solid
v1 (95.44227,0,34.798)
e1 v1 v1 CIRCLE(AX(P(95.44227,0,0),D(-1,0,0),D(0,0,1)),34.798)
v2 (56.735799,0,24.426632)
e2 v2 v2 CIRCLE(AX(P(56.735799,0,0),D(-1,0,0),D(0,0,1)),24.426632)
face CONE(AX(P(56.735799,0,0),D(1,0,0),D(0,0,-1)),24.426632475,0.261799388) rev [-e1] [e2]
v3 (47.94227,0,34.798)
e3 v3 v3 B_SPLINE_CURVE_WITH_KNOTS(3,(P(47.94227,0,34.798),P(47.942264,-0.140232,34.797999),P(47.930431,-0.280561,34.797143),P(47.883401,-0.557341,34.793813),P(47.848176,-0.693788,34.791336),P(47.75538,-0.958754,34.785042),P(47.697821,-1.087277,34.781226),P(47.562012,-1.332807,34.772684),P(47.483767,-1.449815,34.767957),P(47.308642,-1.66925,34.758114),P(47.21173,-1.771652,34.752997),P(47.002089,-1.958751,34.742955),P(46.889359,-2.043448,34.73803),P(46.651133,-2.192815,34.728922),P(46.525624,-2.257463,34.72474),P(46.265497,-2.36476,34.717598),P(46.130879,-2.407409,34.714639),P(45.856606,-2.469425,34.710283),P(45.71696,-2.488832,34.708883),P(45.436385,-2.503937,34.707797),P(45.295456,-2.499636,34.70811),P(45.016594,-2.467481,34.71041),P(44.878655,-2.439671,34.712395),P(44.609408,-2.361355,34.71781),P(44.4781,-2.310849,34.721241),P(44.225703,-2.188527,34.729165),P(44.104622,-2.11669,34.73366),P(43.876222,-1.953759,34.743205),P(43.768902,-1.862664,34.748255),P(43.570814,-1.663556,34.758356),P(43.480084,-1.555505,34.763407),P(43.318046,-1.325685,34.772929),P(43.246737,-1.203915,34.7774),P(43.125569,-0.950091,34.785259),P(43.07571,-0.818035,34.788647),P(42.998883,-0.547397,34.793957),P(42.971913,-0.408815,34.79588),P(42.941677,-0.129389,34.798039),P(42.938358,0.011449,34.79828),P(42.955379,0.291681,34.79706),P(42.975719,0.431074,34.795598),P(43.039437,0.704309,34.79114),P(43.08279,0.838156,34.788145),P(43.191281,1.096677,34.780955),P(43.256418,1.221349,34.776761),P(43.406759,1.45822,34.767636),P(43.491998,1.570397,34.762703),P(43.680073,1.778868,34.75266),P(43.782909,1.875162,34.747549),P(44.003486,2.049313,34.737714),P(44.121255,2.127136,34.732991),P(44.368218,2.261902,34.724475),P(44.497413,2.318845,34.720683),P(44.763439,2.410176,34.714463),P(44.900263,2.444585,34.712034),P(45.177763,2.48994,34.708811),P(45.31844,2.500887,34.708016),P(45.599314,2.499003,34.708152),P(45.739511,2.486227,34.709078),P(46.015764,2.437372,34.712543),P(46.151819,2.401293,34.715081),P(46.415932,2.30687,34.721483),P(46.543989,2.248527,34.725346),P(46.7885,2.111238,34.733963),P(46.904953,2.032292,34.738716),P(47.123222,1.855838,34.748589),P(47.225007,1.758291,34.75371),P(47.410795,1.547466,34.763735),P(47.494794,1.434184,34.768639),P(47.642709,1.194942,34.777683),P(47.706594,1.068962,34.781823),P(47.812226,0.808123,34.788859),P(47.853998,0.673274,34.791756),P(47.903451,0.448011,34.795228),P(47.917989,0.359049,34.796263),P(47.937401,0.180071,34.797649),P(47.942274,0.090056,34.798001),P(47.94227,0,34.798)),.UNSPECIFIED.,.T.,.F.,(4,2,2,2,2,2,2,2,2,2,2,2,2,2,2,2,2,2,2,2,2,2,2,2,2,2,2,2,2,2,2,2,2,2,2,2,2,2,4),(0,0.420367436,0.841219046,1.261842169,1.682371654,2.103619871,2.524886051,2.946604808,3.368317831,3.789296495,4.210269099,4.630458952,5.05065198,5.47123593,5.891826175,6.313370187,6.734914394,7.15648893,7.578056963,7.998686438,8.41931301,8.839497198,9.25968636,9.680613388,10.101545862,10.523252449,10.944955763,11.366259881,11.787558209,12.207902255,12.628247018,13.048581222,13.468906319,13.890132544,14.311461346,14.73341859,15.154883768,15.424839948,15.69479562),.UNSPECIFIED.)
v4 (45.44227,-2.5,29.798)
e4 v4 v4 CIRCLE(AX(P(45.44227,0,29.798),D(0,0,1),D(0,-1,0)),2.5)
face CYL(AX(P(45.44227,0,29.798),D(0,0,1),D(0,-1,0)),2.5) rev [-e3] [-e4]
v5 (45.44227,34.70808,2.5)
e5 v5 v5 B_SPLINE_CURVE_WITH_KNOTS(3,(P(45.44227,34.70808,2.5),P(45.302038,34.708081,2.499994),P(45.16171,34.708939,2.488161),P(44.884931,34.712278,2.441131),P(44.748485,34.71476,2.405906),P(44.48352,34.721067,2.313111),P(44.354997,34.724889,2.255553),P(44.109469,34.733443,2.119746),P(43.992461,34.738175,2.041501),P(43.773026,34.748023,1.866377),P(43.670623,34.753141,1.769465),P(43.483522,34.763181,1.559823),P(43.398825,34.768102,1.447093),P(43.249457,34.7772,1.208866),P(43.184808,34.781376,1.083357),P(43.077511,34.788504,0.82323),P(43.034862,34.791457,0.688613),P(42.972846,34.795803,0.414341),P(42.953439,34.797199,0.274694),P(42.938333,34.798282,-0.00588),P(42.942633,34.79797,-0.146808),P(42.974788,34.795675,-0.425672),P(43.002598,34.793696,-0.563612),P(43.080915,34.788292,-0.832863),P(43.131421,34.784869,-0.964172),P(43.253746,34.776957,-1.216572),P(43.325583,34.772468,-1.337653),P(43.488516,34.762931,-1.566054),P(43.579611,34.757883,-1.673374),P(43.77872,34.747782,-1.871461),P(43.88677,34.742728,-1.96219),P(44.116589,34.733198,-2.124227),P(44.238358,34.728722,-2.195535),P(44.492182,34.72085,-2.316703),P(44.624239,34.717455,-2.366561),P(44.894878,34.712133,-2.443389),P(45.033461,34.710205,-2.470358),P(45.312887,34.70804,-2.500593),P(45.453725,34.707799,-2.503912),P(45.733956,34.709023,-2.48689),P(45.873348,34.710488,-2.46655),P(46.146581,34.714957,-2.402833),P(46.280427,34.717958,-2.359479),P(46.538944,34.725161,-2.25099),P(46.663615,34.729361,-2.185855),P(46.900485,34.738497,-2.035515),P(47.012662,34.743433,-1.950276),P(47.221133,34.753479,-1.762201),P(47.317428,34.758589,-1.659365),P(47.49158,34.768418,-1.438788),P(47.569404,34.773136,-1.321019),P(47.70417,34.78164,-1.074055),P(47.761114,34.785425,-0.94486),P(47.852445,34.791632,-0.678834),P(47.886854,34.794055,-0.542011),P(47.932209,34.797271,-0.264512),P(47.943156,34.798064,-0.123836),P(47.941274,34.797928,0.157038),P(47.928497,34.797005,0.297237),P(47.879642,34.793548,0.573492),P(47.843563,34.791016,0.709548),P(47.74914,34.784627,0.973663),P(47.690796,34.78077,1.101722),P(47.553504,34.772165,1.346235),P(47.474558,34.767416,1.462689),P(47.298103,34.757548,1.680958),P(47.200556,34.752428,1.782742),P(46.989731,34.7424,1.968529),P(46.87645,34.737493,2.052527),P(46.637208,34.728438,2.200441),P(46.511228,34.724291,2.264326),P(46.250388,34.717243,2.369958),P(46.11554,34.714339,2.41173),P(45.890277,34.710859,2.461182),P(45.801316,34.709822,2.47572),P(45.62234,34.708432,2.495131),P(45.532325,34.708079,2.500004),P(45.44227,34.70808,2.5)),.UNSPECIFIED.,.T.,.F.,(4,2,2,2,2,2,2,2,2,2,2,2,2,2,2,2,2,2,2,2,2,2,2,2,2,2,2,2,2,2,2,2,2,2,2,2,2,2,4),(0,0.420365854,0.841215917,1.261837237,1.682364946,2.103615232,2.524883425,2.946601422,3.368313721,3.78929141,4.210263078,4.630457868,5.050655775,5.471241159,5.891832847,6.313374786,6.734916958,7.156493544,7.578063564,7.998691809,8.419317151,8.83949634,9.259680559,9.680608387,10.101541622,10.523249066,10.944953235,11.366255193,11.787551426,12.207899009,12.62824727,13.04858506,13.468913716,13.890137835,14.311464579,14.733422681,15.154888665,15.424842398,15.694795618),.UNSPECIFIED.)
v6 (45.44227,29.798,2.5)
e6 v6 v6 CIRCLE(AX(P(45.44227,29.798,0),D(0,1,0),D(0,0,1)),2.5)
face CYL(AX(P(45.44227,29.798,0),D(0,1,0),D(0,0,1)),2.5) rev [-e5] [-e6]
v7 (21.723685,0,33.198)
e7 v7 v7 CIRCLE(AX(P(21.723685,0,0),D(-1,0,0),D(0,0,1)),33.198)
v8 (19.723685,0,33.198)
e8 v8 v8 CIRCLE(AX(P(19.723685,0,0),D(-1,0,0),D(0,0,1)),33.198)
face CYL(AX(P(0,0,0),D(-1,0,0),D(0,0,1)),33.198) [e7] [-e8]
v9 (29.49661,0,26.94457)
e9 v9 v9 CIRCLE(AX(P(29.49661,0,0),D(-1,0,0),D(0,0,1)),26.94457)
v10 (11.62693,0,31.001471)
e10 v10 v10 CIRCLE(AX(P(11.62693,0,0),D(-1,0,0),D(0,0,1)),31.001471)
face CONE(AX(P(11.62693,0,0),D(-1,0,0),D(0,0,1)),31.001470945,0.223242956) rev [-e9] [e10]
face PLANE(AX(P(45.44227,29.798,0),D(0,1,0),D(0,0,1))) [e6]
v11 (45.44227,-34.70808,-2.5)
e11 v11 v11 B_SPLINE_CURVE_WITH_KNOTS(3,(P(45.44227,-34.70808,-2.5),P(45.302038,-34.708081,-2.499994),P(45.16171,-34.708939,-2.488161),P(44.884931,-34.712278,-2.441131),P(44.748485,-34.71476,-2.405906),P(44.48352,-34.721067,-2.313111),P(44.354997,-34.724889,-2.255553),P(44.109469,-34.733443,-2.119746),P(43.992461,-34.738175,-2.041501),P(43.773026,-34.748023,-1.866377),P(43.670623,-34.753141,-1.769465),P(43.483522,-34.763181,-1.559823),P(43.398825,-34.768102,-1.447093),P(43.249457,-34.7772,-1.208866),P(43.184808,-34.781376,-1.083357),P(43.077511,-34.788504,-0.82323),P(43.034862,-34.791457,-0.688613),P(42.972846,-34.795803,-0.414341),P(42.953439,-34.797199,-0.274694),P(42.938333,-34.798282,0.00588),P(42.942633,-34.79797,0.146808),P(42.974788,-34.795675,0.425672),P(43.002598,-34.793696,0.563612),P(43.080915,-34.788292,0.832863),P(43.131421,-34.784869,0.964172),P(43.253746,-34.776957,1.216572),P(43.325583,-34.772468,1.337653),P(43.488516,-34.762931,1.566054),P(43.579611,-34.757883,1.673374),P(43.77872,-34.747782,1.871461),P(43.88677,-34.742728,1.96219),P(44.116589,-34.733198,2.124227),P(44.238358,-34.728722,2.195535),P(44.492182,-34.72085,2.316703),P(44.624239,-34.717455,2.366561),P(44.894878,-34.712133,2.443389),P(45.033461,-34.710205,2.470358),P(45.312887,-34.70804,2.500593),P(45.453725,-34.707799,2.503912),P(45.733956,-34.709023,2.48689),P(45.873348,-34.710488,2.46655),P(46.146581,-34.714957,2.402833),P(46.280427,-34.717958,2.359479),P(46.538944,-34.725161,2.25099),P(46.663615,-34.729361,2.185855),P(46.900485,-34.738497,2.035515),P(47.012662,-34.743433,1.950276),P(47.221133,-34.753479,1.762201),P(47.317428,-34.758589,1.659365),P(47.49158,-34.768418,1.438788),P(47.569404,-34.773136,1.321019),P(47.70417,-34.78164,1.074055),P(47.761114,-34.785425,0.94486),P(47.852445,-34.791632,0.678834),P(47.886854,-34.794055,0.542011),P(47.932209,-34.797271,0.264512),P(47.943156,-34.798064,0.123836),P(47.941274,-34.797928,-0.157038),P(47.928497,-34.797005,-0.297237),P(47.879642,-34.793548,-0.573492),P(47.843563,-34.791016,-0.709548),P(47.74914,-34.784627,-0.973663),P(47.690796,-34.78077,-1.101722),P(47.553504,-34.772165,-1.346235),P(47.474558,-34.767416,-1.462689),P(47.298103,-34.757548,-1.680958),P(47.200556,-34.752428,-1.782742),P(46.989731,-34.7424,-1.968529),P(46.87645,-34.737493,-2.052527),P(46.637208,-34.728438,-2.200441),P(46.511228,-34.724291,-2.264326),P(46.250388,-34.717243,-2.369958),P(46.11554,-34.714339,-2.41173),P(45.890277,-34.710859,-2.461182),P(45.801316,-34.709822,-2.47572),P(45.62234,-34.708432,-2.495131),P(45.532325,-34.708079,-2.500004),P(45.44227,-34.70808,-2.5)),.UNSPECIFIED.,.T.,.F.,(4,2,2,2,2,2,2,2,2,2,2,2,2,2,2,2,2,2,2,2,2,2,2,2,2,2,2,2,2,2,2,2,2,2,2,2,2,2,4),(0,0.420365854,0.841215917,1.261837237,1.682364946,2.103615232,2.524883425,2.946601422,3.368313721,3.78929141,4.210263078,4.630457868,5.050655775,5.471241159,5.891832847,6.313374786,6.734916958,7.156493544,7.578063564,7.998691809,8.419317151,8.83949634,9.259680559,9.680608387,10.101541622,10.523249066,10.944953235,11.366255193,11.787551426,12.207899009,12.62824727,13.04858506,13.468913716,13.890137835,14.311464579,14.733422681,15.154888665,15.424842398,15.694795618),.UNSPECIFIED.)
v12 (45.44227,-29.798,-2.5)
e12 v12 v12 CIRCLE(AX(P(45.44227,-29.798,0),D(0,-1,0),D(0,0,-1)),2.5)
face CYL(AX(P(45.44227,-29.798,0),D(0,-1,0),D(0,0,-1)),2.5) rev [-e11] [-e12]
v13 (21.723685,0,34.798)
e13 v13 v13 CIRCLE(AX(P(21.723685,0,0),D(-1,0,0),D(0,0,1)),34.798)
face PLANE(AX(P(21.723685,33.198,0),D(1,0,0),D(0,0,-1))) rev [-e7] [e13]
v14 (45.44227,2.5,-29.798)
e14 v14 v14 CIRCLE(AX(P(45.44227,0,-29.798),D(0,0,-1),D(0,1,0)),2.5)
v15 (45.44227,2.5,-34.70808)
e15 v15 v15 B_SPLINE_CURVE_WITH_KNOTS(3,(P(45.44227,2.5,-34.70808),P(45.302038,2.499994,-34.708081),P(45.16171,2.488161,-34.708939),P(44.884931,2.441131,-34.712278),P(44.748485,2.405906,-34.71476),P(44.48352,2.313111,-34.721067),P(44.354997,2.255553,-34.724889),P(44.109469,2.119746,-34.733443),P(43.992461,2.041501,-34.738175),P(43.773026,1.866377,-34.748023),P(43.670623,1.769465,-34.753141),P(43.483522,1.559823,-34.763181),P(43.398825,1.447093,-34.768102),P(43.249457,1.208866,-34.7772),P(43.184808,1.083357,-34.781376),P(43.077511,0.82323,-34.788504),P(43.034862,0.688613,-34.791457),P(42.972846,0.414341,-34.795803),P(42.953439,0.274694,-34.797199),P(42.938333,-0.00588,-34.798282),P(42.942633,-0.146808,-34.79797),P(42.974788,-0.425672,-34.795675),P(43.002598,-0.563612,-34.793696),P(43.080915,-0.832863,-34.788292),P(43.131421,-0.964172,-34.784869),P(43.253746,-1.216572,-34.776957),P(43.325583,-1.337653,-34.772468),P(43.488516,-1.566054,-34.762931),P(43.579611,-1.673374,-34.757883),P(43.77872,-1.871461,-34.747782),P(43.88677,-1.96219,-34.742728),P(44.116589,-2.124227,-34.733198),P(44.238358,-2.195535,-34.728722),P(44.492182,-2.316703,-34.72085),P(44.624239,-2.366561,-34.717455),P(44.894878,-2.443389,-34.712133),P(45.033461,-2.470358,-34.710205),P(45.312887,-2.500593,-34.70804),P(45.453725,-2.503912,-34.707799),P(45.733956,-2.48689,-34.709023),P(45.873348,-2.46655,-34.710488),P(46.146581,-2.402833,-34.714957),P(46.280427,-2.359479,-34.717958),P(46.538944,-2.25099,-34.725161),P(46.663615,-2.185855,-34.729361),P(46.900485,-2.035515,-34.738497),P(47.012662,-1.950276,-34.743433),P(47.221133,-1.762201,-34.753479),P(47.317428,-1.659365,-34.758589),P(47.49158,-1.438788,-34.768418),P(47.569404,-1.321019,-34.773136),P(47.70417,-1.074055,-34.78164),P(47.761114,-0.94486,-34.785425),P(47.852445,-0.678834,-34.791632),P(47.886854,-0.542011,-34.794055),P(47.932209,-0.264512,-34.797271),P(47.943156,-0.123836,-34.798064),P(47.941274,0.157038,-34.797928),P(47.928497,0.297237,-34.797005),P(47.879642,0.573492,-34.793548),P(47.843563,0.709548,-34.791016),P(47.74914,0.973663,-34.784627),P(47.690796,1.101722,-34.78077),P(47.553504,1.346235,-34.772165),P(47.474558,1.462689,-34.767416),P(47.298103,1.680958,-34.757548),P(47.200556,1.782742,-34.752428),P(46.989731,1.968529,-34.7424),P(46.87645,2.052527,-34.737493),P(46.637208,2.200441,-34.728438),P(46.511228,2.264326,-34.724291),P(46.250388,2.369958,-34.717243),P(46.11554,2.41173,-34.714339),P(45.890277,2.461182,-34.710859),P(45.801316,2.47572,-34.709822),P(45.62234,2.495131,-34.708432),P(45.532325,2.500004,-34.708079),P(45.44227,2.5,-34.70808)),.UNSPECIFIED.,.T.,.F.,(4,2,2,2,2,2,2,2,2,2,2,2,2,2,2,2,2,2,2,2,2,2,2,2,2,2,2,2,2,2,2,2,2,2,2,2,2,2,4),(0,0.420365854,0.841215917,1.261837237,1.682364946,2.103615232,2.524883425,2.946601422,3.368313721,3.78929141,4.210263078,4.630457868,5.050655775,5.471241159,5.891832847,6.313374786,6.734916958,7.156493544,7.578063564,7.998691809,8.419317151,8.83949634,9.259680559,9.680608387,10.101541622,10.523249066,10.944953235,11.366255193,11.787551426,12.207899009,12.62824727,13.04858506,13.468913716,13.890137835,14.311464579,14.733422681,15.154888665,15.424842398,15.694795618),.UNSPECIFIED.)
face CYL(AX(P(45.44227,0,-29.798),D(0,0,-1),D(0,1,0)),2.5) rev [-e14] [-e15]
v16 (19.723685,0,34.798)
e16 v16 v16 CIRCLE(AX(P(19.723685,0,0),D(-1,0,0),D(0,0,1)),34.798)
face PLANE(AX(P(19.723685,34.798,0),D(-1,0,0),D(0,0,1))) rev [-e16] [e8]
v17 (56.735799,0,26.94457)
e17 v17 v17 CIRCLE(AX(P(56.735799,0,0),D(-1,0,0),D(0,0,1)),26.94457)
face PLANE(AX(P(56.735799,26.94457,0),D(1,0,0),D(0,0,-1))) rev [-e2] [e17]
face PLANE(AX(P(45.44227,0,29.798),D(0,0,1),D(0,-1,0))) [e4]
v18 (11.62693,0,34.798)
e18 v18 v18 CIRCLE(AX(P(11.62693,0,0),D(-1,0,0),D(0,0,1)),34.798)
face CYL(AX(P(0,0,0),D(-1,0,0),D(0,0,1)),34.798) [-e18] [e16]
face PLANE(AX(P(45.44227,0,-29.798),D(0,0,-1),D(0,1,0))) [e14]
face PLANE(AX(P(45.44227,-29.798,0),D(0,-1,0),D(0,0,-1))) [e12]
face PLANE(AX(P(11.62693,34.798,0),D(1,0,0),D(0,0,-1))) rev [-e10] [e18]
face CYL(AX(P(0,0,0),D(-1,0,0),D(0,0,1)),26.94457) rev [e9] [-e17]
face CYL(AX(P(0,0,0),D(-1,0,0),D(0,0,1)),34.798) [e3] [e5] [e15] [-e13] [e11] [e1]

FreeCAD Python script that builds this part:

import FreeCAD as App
import Part
import Sketcher
Q = App.Units.Quantity

doc = App.newDocument("Part")
params = doc.addObject("Spreadsheet::Sheet", "Params")
for row, (alias, value) in enumerate([
    ("sketch1_width", "2 mm"),
    ("sketch1_height", "1.6 mm"),
    ("revolution_angle", "360 deg"),
    ("sketch2_diameter", "5 mm"),
    ("pocket1_length", "5 mm"),
], start=1):
    params.set(f"A{row}", alias)
    params.set(f"B{row}", "=" + value)
    params.setAlias(f"B{row}", alias)

body = doc.addObject("PartDesign::Body", "Body")

sketch1 = body.newObject("Sketcher::SketchObject", "Sketch")
sketch1.AttachmentSupport = (doc.getObject("XY_Plane"), [""])
sketch1.MapMode = "FlatFace"
sketch1.addGeometry(Part.LineSegment(App.Vector(19.723685, 34.798, 0), App.Vector(11.62693, 34.798, 0)), False)
sketch1.addGeometry(Part.LineSegment(App.Vector(11.62693, 34.798, 0), App.Vector(11.62693, 31.001471, 0)), False)
sketch1.addGeometry(Part.LineSegment(App.Vector(11.62693, 31.001471, 0), App.Vector(29.49661, 26.94457, 0)), False)
sketch1.addGeometry(Part.LineSegment(App.Vector(29.49661, 26.94457, 0), App.Vector(56.735799, 26.94457, 0)), False)
sketch1.addGeometry(Part.LineSegment(App.Vector(56.735799, 26.94457, 0), App.Vector(56.735799, 24.426632, 0)), False)
sketch1.addGeometry(Part.LineSegment(App.Vector(56.735799, 24.426632, 0), App.Vector(95.44227, 34.798, 0)), False)
sketch1.addGeometry(Part.LineSegment(App.Vector(95.44227, 34.798, 0), App.Vector(21.723685, 34.798, 0)), False)
sketch1.addGeometry(Part.LineSegment(App.Vector(21.723685, 34.798, 0), App.Vector(21.723685, 33.198, 0)), False)
sketch1.addGeometry(Part.LineSegment(App.Vector(21.723685, 33.198, 0), App.Vector(19.723685, 33.198, 0)), False)
sketch1.addGeometry(Part.LineSegment(App.Vector(19.723685, 33.198, 0), App.Vector(19.723685, 34.798, 0)), False)
sketch1.addConstraint(Sketcher.Constraint("Coincident", 0, 2, 1, 1))
sketch1.addConstraint(Sketcher.Constraint("Coincident", 1, 2, 2, 1))
sketch1.addConstraint(Sketcher.Constraint("Coincident", 2, 2, 3, 1))
sketch1.addConstraint(Sketcher.Constraint("Coincident", 3, 2, 4, 1))
sketch1.addConstraint(Sketcher.Constraint("Coincident", 4, 2, 5, 1))
sketch1.addConstraint(Sketcher.Constraint("Coincident", 5, 2, 6, 1))
sketch1.addConstraint(Sketcher.Constraint("Coincident", 6, 2, 7, 1))
sketch1.addConstraint(Sketcher.Constraint("Coincident", 7, 2, 8, 1))
sketch1.addConstraint(Sketcher.Constraint("Coincident", 8, 2, 9, 1))
sketch1.addConstraint(Sketcher.Constraint("Coincident", 9, 2, 0, 1))
sketch1.addConstraint(Sketcher.Constraint("Horizontal", 0))
sketch1.addConstraint(Sketcher.Constraint("Vertical", 1))
sketch1.addConstraint(Sketcher.Constraint("Horizontal", 3))
sketch1.addConstraint(Sketcher.Constraint("Vertical", 4))
sketch1.addConstraint(Sketcher.Constraint("Horizontal", 6))
sketch1.addConstraint(Sketcher.Constraint("Vertical", 7))
sketch1.addConstraint(Sketcher.Constraint("Horizontal", 8))
sketch1.addConstraint(Sketcher.Constraint("Vertical", 9))
sketch1.addConstraint(Sketcher.Constraint("Horizontal", 0, 2, 5, 2))
sketch1.addConstraint(Sketcher.Constraint("DistanceX", 8, 2, 8, 1, 2.0))
sketch1.addConstraint(Sketcher.Constraint("Angle", 5, Q("15 deg")))
sketch1.addConstraint(Sketcher.Constraint("DistanceY", 7, 2, 7, 1, 1.6))
sketch1.addConstraint(Sketcher.Constraint("DistanceY", -1, 1, 0, 2, 34.798))
sketch1.addConstraint(Sketcher.Constraint("DistanceX", 3, 1, 3, 2, 27.239189))
sketch1.addConstraint(Sketcher.Constraint("DistanceY", 1, 2, 1, 1, 3.796529))
sketch1.addConstraint(Sketcher.Constraint("DistanceX", -1, 1, 3, 2, 56.735799))
sketch1.addConstraint(Sketcher.Constraint("DistanceY", 2, 2, 1, 2, 4.056901))
sketch1.addConstraint(Sketcher.Constraint("Distance", 2, 18.324408))
sketch1.addConstraint(Sketcher.Constraint("DistanceX", 0, 2, 0, 1, 8.096756))
sketch1.addConstraint(Sketcher.Constraint("DistanceX", 6, 2, 6, 1, 73.718585))
sketch1.setExpression("Constraints[19]", "Params.sketch1_width")
sketch1.setExpression("Constraints[21]", "Params.sketch1_height")
revolution = body.newObject("PartDesign::Revolution", "Revolution")
revolution.Profile = sketch1
revolution.ReferenceAxis = (sketch1, ["H_Axis"])
revolution.setExpression("Angle", "Params.revolution_angle")

sketch2 = body.newObject("Sketcher::SketchObject", "Sketch001")
sketch2.AttachmentSupport = (doc.getObject("XZ_Plane"), [""])
sketch2.MapMode = "FlatFace"
sketch2.AttachmentOffset = App.Placement(App.Vector(0, 0, -34.798), App.Rotation())
sketch2.addGeometry(Part.Circle(App.Vector(45.44227, 0, 0), App.Vector(0, 0, 1), 2.5), False)
sketch2.addConstraint(Sketcher.Constraint("PointOnObject", 0, 3, -1))
sketch2.addConstraint(Sketcher.Constraint("Diameter", 0, 5.0))
sketch2.addConstraint(Sketcher.Constraint("DistanceX", -1, 1, 0, 3, 45.44227))
sketch2.setExpression("Constraints[1]", "Params.sketch2_diameter")
pocket1 = body.newObject("PartDesign::Pocket", "Pocket")
pocket1.Profile = sketch2
pocket1.setExpression("Length", "Params.pocket1_length")
pocket1.Reversed = True
doc.recompute()

polarpattern = body.newObject("PartDesign::PolarPattern", "PolarPattern")
polarpattern.Originals = [pocket1]
polarpattern.Axis = (doc.getObject("X_Axis"), [""])
polarpattern.Angle = 360
polarpattern.Occurrences = 4
body.Tip = polarpattern

doc.recompute()
